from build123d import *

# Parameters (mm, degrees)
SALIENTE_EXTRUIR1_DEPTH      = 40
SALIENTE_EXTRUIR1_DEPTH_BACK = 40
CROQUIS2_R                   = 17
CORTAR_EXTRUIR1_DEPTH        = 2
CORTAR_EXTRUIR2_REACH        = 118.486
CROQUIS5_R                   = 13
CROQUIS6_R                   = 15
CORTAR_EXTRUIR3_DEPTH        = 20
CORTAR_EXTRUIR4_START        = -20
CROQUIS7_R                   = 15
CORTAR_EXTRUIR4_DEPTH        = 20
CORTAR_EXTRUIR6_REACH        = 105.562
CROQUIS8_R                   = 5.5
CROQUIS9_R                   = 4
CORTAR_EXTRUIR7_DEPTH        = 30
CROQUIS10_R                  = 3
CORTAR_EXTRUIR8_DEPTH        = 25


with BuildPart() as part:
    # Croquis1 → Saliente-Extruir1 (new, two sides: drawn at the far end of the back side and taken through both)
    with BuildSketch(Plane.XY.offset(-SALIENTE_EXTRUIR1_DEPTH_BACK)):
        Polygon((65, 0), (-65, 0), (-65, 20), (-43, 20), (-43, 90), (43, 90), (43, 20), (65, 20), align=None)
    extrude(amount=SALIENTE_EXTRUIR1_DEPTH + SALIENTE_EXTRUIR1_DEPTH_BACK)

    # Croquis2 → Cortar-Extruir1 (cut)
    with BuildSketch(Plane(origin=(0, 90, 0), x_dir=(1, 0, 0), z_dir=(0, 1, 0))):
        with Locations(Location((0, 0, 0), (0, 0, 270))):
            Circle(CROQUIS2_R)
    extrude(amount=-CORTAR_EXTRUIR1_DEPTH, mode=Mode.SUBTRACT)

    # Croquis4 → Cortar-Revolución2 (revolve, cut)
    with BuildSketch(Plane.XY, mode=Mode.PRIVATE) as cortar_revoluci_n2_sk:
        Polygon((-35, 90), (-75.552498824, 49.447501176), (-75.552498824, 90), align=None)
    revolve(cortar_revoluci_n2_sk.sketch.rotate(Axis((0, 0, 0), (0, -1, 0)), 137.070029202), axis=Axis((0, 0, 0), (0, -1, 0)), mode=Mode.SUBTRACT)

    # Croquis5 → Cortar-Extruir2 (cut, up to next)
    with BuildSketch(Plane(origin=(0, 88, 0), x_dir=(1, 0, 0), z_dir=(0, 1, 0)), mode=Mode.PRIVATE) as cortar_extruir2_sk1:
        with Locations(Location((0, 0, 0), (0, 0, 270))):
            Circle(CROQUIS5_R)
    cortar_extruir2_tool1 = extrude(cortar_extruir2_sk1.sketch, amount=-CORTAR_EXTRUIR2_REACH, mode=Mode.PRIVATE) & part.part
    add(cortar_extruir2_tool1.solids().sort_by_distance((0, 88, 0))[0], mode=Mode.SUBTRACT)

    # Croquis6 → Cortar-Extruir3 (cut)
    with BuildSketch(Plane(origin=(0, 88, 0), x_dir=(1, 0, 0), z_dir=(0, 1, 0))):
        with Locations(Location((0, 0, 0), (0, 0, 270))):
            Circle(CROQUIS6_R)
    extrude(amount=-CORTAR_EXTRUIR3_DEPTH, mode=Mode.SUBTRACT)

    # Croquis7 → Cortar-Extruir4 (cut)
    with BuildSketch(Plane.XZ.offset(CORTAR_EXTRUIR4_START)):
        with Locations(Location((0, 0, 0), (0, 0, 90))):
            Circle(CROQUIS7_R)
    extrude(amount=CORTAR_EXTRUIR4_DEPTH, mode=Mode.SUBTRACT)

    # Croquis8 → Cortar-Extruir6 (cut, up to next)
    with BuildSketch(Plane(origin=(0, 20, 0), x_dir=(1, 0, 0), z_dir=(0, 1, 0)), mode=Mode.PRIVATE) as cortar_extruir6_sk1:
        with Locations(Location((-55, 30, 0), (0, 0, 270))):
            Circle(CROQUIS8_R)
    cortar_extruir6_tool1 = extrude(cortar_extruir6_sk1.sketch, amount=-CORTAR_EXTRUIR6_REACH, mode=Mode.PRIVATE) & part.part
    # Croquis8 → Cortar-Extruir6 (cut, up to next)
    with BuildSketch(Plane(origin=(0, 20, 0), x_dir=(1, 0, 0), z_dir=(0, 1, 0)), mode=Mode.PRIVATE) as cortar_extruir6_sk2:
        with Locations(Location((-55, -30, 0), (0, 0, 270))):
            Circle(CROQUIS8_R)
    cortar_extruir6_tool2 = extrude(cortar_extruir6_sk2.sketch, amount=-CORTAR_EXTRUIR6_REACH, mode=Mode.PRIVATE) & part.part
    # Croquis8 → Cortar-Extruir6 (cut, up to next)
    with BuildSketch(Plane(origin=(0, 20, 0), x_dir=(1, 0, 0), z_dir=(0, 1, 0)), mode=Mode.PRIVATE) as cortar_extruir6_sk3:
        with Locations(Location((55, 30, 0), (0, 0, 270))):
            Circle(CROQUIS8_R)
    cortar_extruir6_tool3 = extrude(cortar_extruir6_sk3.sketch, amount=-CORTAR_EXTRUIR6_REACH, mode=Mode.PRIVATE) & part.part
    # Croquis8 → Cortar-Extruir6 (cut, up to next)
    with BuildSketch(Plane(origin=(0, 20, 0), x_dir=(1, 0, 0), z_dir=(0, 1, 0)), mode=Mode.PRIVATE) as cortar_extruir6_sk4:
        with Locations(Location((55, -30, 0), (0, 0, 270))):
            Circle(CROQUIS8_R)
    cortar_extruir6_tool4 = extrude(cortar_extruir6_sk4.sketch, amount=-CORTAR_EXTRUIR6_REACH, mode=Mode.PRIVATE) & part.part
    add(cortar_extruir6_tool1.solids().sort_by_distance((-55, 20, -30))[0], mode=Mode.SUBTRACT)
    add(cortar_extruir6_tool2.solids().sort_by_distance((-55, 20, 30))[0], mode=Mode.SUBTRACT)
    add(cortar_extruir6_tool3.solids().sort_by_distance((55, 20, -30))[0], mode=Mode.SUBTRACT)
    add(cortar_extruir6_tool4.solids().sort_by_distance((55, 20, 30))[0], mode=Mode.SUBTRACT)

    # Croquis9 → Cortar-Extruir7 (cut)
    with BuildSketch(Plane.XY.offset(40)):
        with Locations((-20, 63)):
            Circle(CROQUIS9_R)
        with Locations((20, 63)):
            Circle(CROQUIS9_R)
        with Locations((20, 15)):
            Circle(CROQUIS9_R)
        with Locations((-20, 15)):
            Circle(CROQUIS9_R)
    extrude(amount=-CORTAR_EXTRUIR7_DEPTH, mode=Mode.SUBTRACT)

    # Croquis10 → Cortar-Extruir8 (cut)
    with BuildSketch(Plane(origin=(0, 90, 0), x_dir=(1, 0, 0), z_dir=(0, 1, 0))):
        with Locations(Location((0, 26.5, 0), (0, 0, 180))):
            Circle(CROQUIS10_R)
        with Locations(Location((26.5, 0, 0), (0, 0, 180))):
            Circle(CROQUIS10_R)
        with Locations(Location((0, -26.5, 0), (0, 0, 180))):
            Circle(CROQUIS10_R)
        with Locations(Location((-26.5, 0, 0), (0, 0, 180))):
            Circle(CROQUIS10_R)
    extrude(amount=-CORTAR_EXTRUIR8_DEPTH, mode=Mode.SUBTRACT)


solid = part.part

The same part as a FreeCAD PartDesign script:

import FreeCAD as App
import Part
import Sketcher
from FreeCAD import Vector
Q = App.Units.Quantity


def add_polygon(sketch, points):
    """Adds a closed chain of lines whose ends are joined by coincident constraints."""
    first, n = sketch.GeometryCount, len(points)
    for a, b in zip(points, points[1:] + points[:1]):
        sketch.addGeometry(Part.LineSegment(App.Vector(*a, 0), App.Vector(*b, 0)), False)
    for i in range(n):
        sketch.addConstraint(Sketcher.Constraint("Coincident", first + i, 2, first + (i + 1) % n, 1))

doc = App.newDocument("Part")
body = doc.addObject("PartDesign::Body", "Body")

sketch1 = body.newObject("Sketcher::SketchObject", "Sketch")
sketch1.AttachmentSupport = (doc.getObject("XY_Plane"), [""])
sketch1.MapMode = "FlatFace"
add_polygon(sketch1, [(-65, 0), (65, 0), (65, 20), (43, 20), (43, 90), (-43, 90), (-43, 20), (-65, 20)])
sketch1.addConstraint([
    Sketcher.Constraint("Horizontal", 0),
    Sketcher.Constraint("Vertical", 1),
    Sketcher.Constraint("Horizontal", 2),
    Sketcher.Constraint("Vertical", 3),
    Sketcher.Constraint("Horizontal", 4),
    Sketcher.Constraint("Vertical", 5),
    Sketcher.Constraint("Horizontal", 6),
    Sketcher.Constraint("Vertical", 7),
    Sketcher.Constraint("Symmetric", 0, 2, 7, 2, -1, 1),
    Sketcher.Constraint("Symmetric", 2, 2, 5, 2, -2),
    Sketcher.Constraint("DistanceX", 0, 1, 0, 2, Q("130 mm")),
    Sketcher.Constraint("DistanceX", 2, 2, 2, 1, Q("22 mm")),
    Sketcher.Constraint("DistanceY", 1, 1, 1, 2, Q("20 mm")),
    Sketcher.Constraint("DistanceY", 3, 1, 3, 2, Q("70 mm")),
])
pad1 = body.newObject("PartDesign::Pad", "Pad")
pad1.Profile = sketch1
pad1.Type = "TwoLengths"
pad1.Length = 40
pad1.Length2 = 40

sketch2 = body.newObject("Sketcher::SketchObject", "Sketch001")
sketch2.AttachmentSupport = (doc.getObject("XZ_Plane"), [""])
sketch2.MapMode = "FlatFace"
sketch2.AttachmentOffset = App.Placement(Vector(0, 0, -90), App.Rotation())
sketch2.addGeometry(Part.Circle(Vector(0, 0, 0), Vector(0, 0, 1), 17), False)
sketch2.addConstraint([
    Sketcher.Constraint("Coincident", 0, 3, -1, 1),
    Sketcher.Constraint("Diameter", 0, Q("34 mm")),
])
pocket1 = body.newObject("PartDesign::Pocket", "Pocket")
pocket1.Profile = sketch2
pocket1.Length = 2
pocket1.Reversed = True

sketch3 = body.newObject("Sketcher::SketchObject", "Sketch002")
sketch3.AttachmentSupport = (doc.getObject("XY_Plane"), [""])
sketch3.MapMode = "FlatFace"
add_polygon(sketch3, [(-76, 49), (-35, 90), (-76, 90)])
sketch3.addConstraint([
    Sketcher.Constraint("Horizontal", 1),
    Sketcher.Constraint("Vertical", 2),
    Sketcher.Constraint("Equal", 1, 2),
    Sketcher.Constraint("DistanceX", 0, 2, -1, 1, Q("35 mm")),
    Sketcher.Constraint("DistanceY", -1, 1, 0, 2, Q("90 mm")),
    Sketcher.Constraint("DistanceX", 1, 2, 1, 1, Q("40.552499 mm")),
])
groove = body.newObject("PartDesign::Groove", "Groove")
groove.Profile = sketch3
groove.ReferenceAxis = (sketch3, ["V_Axis"])
groove.Angle = 360

sketch4 = body.newObject("Sketcher::SketchObject", "Sketch003")
sketch4.AttachmentSupport = (doc.getObject("XZ_Plane"), [""])
sketch4.MapMode = "FlatFace"
sketch4.AttachmentOffset = App.Placement(Vector(0, 0, -88), App.Rotation())
sketch4.addGeometry(Part.Circle(Vector(0, 0, 0), Vector(0, 0, 1), 13), False)
sketch4.addConstraint([
    Sketcher.Constraint("Coincident", 0, 3, -1, 1),
    Sketcher.Constraint("Diameter", 0, Q("26 mm")),
])
pocket2 = body.newObject("PartDesign::Pocket", "Pocket001")
pocket2.Profile = sketch4
pocket2.Type = "UpToFirst"
pocket2.Reversed = True

sketch5 = body.newObject("Sketcher::SketchObject", "Sketch004")
sketch5.AttachmentSupport = (doc.getObject("XZ_Plane"), [""])
sketch5.MapMode = "FlatFace"
sketch5.AttachmentOffset = App.Placement(Vector(0, 0, -88), App.Rotation())
sketch5.addGeometry(Part.Circle(Vector(0, 0, 0), Vector(0, 0, 1), 15), False)
sketch5.addConstraint([
    Sketcher.Constraint("Coincident", 0, 3, -1, 1),
    Sketcher.Constraint("Diameter", 0, Q("30 mm")),
])
pocket3 = body.newObject("PartDesign::Pocket", "Pocket002")
pocket3.Profile = sketch5
pocket3.Length = 20
pocket3.Reversed = True

sketch6 = body.newObject("Sketcher::SketchObject", "Sketch005")
sketch6.AttachmentSupport = (doc.getObject("XZ_Plane"), [""])
sketch6.MapMode = "FlatFace"
sketch6.AttachmentOffset = App.Placement(Vector(0, 0, -20), App.Rotation())
sketch6.addGeometry(Part.Circle(Vector(0, 0, 0), Vector(0, 0, 1), 15), False)
sketch6.addConstraint([
    Sketcher.Constraint("Coincident", 0, 3, -1, 1),
    Sketcher.Constraint("Diameter", 0, Q("30 mm")),
])
pocket4 = body.newObject("PartDesign::Pocket", "Pocket003")
pocket4.Profile = sketch6
pocket4.Length = 20
pocket4.Reversed = True

sketch7 = body.newObject("Sketcher::SketchObject", "Sketch006")
sketch7.AttachmentSupport = (doc.getObject("XZ_Plane"), [""])
sketch7.MapMode = "FlatFace"
sketch7.AttachmentOffset = App.Placement(Vector(0, 0, -20), App.Rotation())
sketch7.addGeometry(Part.Circle(Vector(-55, -30, 0), Vector(0, 0, 1), 6), False)
sketch7.addConstraint([
    Sketcher.Constraint("Diameter", 0, Q("11 mm")),
    Sketcher.Constraint("DistanceX", 0, 3, -1, 1, Q("55 mm")),
    Sketcher.Constraint("DistanceY", 0, 3, -1, 1, Q("30 mm")),
])
pocket5 = body.newObject("PartDesign::Pocket", "Pocket004")
pocket5.Profile = sketch7
pocket5.Type = "UpToFirst"
pocket5.Reversed = True

sketch8 = body.newObject("Sketcher::SketchObject", "Sketch007")
sketch8.AttachmentSupport = (doc.getObject("XZ_Plane"), [""])
sketch8.MapMode = "FlatFace"
sketch8.AttachmentOffset = App.Placement(Vector(0, 0, -20), App.Rotation())
sketch8.addGeometry(Part.Circle(Vector(-55, 30, 0), Vector(0, 0, 1), 6), False)
sketch8.addConstraint([
    Sketcher.Constraint("Diameter", 0, Q("11 mm")),
    Sketcher.Constraint("DistanceX", 0, 3, -1, 1, Q("55 mm")),
    Sketcher.Constraint("DistanceY", -1, 1, 0, 3, Q("30 mm")),
])
pocket6 = body.newObject("PartDesign::Pocket", "Pocket005")
pocket6.Profile = sketch8
pocket6.Type = "UpToFirst"
pocket6.Reversed = True

sketch9 = body.newObject("Sketcher::SketchObject", "Sketch008")
sketch9.AttachmentSupport = (doc.getObject("XZ_Plane"), [""])
sketch9.MapMode = "FlatFace"
sketch9.AttachmentOffset = App.Placement(Vector(0, 0, -20), App.Rotation())
sketch9.addGeometry(Part.Circle(Vector(55, -30, 0), Vector(0, 0, 1), 6), False)
sketch9.addConstraint([
    Sketcher.Constraint("Diameter", 0, Q("11 mm")),
    Sketcher.Constraint("DistanceX", -1, 1, 0, 3, Q("55 mm")),
    Sketcher.Constraint("DistanceY", 0, 3, -1, 1, Q("30 mm")),
])
pocket7 = body.newObject("PartDesign::Pocket", "Pocket006")
pocket7.Profile = sketch9
pocket7.Type = "UpToFirst"
pocket7.Reversed = True

sketch10 = body.newObject("Sketcher::SketchObject", "Sketch009")
sketch10.AttachmentSupport = (doc.getObject("XZ_Plane"), [""])
sketch10.MapMode = "FlatFace"
sketch10.AttachmentOffset = App.Placement(Vector(0, 0, -20), App.Rotation())
sketch10.addGeometry(Part.Circle(Vector(55, 30, 0), Vector(0, 0, 1), 6), False)
sketch10.addConstraint([
    Sketcher.Constraint("Diameter", 0, Q("11 mm")),
    Sketcher.Constraint("DistanceX", -1, 1, 0, 3, Q("55 mm")),
    Sketcher.Constraint("DistanceY", -1, 1, 0, 3, Q("30 mm")),
])
pocket8 = body.newObject("PartDesign::Pocket", "Pocket007")
pocket8.Profile = sketch10
pocket8.Type = "UpToFirst"
pocket8.Reversed = True

sketch11 = body.newObject("Sketcher::SketchObject", "Sketch010")
sketch11.AttachmentSupport = (doc.getObject("XY_Plane"), [""])
sketch11.MapMode = "FlatFace"
sketch11.AttachmentOffset = App.Placement(Vector(0, 0, 40), App.Rotation())
sketch11.addGeometry([
    Part.Circle(Vector(-20, 63, 0), Vector(0, 0, 1), 4),
    Part.Circle(Vector(20, 63, 0), Vector(0, 0, 1), 4),
    Part.Circle(Vector(20, 15, 0), Vector(0, 0, 1), 4),
    Part.Circle(Vector(-20, 15, 0), Vector(0, 0, 1), 4),
], False)
sketch11.addConstraint([
    Sketcher.Constraint("Equal", 0, 1),
    Sketcher.Constraint("Equal", 1, 2),
    Sketcher.Constraint("Equal", 2, 3),
    Sketcher.Constraint("Symmetric", 0, 3, 1, 3, -2),
    Sketcher.Constraint("Symmetric", 2, 3, 3, 3, -2),
    Sketcher.Constraint("Vertical", 1, 3, 2, 3),
    Sketcher.Constraint("Diameter", 0, Q("8 mm")),
    Sketcher.Constraint("DistanceX", 0, 3, -1, 1, Q("20 mm")),
    Sketcher.Constraint("DistanceY", -1, 1, 0, 3, Q("63 mm")),
    Sketcher.Constraint("DistanceY", -1, 1, 2, 3, Q("15 mm")),
])
pocket9 = body.newObject("PartDesign::Pocket", "Pocket008")
pocket9.Profile = sketch11
pocket9.Length = 30

sketch12 = body.newObject("Sketcher::SketchObject", "Sketch011")
sketch12.AttachmentSupport = (doc.getObject("XZ_Plane"), [""])
sketch12.MapMode = "FlatFace"
sketch12.AttachmentOffset = App.Placement(Vector(0, 0, -90), App.Rotation())
sketch12.addGeometry([
    Part.Circle(Vector(0, -26.5, 0), Vector(0, 0, 1), 3),
    Part.Circle(Vector(26.5, 0, 0), Vector(0, 0, 1), 3),
    Part.Circle(Vector(0, 26.5, 0), Vector(0, 0, 1), 3),
    Part.Circle(Vector(-26.5, 0, 0), Vector(0, 0, 1), 3),
], False)
sketch12.addConstraint([
    Sketcher.Constraint("Equal", 0, 1),
    Sketcher.Constraint("Equal", 1, 2),
    Sketcher.Constraint("Equal", 2, 3),
    Sketcher.Constraint("Symmetric", 0, 3, 2, 3, -1, 1),
    Sketcher.Constraint("Symmetric", 1, 3, 3, 3, -1, 1),
    Sketcher.Constraint("PointOnObject", 0, 3, -2),
    Sketcher.Constraint("PointOnObject", 1, 3, -1),
    Sketcher.Constraint("Diameter", 0, Q("6 mm")),
    Sketcher.Constraint("DistanceY", 0, 3, 2, 3, Q("53 mm")),
    Sketcher.Constraint("DistanceX", 3, 3, 1, 3, Q("53 mm")),
])
pocket10 = body.newObject("PartDesign::Pocket", "Pocket009")
pocket10.Profile = sketch12
pocket10.Length = 25
pocket10.Reversed = True

doc.recompute()
